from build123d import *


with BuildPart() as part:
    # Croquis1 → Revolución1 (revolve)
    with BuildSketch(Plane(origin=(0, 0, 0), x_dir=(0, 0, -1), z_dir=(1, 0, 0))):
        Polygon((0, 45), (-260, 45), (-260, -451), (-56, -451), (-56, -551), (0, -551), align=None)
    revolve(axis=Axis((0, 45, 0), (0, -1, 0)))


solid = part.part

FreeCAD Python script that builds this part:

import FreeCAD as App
import Part
import Sketcher
from FreeCAD import Vector
Q = App.Units.Quantity


def add_polygon(sketch, points):
    """Adds a closed chain of lines whose ends are joined by coincident constraints."""
    first, n = sketch.GeometryCount, len(points)
    for a, b in zip(points, points[1:] + points[:1]):
        sketch.addGeometry(Part.LineSegment(App.Vector(*a, 0), App.Vector(*b, 0)), False)
    for i in range(n):
        sketch.addConstraint(Sketcher.Constraint("Coincident", first + i, 2, first + (i + 1) % n, 1))

doc = App.newDocument("Part")
body = doc.addObject("PartDesign::Body", "Body")

# Sketch on YZ plane
sketch1 = body.newObject("Sketcher::SketchObject", "Sketch")
sketch1.AttachmentSupport = (doc.getObject("YZ_Plane"), [""])
sketch1.MapMode = "FlatFace"
add_polygon(sketch1, [(45, 0), (45, 260), (-451, 260), (-451, 56), (-551, 56), (-551, 0)])  # lines 0-5
sketch1.addConstraint([
    Sketcher.Constraint("Vertical", 0),
    Sketcher.Constraint("Horizontal", 1),
    Sketcher.Constraint("Vertical", 2),
    Sketcher.Constraint("Horizontal", 3),
    Sketcher.Constraint("Vertical", 4),
    Sketcher.Constraint("Horizontal", 5),
    Sketcher.Constraint("PointOnObject", 4, 2, -1),
    Sketcher.Constraint("DistanceX", 1, 2, 1, 1, Q("496 mm")),
    Sketcher.Constraint("DistanceX", 3, 2, 3, 1, Q("100 mm")),
    Sketcher.Constraint("DistanceY", 0, 1, 0, 2, Q("260 mm")),
    Sketcher.Constraint("DistanceY", 2, 2, 2, 1, Q("204 mm")),
    Sketcher.Constraint("DistanceX", -1, 1, 0, 2, Q("45 mm")),
])
revolution = body.newObject("PartDesign::Revolution", "Revolution")
revolution.Profile = sketch1
revolution.ReferenceAxis = (sketch1, ["H_Axis"])
revolution.Angle = 360

doc.recompute()
